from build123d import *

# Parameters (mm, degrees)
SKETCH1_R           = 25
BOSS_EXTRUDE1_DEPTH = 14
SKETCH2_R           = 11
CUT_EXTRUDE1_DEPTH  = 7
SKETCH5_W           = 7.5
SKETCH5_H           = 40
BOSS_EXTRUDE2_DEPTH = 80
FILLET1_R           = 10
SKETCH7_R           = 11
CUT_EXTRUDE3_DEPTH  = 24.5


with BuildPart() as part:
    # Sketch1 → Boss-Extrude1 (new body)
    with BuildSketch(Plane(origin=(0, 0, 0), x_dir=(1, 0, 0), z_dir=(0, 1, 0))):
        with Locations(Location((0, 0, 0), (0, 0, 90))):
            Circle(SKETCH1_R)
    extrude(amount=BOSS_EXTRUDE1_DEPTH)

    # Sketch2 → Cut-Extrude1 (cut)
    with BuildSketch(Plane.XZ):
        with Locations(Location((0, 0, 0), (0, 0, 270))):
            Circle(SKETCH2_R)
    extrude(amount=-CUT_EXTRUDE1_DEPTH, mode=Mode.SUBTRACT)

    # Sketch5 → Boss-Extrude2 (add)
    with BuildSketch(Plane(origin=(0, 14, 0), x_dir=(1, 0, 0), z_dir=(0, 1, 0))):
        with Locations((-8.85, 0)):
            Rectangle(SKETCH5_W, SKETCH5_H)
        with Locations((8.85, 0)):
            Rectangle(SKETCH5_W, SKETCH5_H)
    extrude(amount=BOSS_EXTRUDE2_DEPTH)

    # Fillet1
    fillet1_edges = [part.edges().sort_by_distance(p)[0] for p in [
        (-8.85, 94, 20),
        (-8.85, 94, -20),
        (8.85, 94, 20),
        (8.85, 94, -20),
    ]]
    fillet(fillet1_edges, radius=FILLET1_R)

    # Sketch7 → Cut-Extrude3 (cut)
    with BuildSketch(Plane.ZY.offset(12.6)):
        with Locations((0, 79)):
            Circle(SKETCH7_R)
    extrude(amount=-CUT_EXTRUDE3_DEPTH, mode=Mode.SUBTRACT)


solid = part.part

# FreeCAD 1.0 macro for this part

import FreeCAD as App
import Part
import Sketcher

V = App.Vector
Q = App.Units.Quantity


def edges_at(feature, points):
    """Names of the edges that pass closest to the given points."""
    edges = feature.Shape.Edges
    near = lambda p: min(range(len(edges)), key=lambda i: edges[i].distToShape(Part.Vertex(*p))[0])
    return sorted({f"Edge{near(p) + 1}" for p in points})


def add_polygon(sketch, points):
    """Adds a closed chain of lines whose ends are joined by coincident constraints."""
    first, n = sketch.GeometryCount, len(points)
    for a, b in zip(points, points[1:] + points[:1]):
        sketch.addGeometry(Part.LineSegment(App.Vector(*a, 0), App.Vector(*b, 0)), False)
    for i in range(n):
        sketch.addConstraint(Sketcher.Constraint("Coincident", first + i, 2, first + (i + 1) % n, 1))

doc = App.newDocument("Part")
body = doc.addObject("PartDesign::Body", "Body")

sketch1 = body.newObject("Sketcher::SketchObject", "Sketch")
sketch1.AttachmentSupport = (doc.getObject("XZ_Plane"), [""])
sketch1.MapMode = "FlatFace"
sketch1.addGeometry(Part.Circle(V(0, 0, 0), V(0, 0, 1), 25), False)
sketch1.addConstraint(Sketcher.Constraint("Coincident", 0, 3, -1, 1))
sketch1.addConstraint(Sketcher.Constraint("Diameter", 0, Q("50 mm")))
pad1 = body.newObject("PartDesign::Pad", "Pad")
pad1.Profile = sketch1
pad1.Length = 14
pad1.Reversed = True

sketch2 = body.newObject("Sketcher::SketchObject", "Sketch001")
sketch2.AttachmentSupport = (doc.getObject("XZ_Plane"), [""])
sketch2.MapMode = "FlatFace"
sketch2.addGeometry(Part.Circle(V(0, 0, 0), V(0, 0, 1), 11), False)
sketch2.addConstraint(Sketcher.Constraint("Coincident", 0, 3, -1, 1))
sketch2.addConstraint(Sketcher.Constraint("Diameter", 0, Q("22 mm")))
pocket1 = body.newObject("PartDesign::Pocket", "Pocket")
pocket1.Profile = sketch2
pocket1.Length = 7

sketch3 = body.newObject("Sketcher::SketchObject", "Sketch002")
sketch3.AttachmentSupport = (doc.getObject("XZ_Plane"), [""])
sketch3.MapMode = "FlatFace"
sketch3.AttachmentOffset = App.Placement(V(0, 0, -14), App.Rotation())
add_polygon(sketch3, [(-13, -20), (-13, 20), (-5, 20), (-5, -20)])
add_polygon(sketch3, [(5, -20), (5, 20), (13, 20), (13, -20)])
sketch3.addConstraint(Sketcher.Constraint("Vertical", 0))
sketch3.addConstraint(Sketcher.Constraint("Horizontal", 1))
sketch3.addConstraint(Sketcher.Constraint("Vertical", 2))
sketch3.addConstraint(Sketcher.Constraint("Horizontal", 3))
sketch3.addConstraint(Sketcher.Constraint("Vertical", 4))
sketch3.addConstraint(Sketcher.Constraint("Horizontal", 5))
sketch3.addConstraint(Sketcher.Constraint("Vertical", 6))
sketch3.addConstraint(Sketcher.Constraint("Horizontal", 7))
sketch3.addConstraint(Sketcher.Constraint("Symmetric", 2, 2, 4, 2, -1, 1))
sketch3.addConstraint(Sketcher.Constraint("Symmetric", 0, 2, 6, 2, -1, 1))
sketch3.addConstraint(Sketcher.Constraint("Horizontal", 1, 2, 4, 2))
sketch3.addConstraint(Sketcher.Constraint("DistanceY", 0, 1, 0, 2, Q("40 mm")))
sketch3.addConstraint(Sketcher.Constraint("DistanceX", 1, 1, 1, 2, Q("7.5 mm")))
sketch3.addConstraint(Sketcher.Constraint("DistanceX", 0, 2, -1, 1, Q("12.6 mm")))
pad2 = body.newObject("PartDesign::Pad", "Pad001")
pad2.Profile = sketch3
pad2.Length = 80
pad2.Reversed = True
doc.recompute()

fillet = body.newObject("PartDesign::Fillet", "Fillet")
fillet.Base = (pad2, edges_at(pad2, [
    (-8.85, 94, 20),
    (-8.85, 94, -20),
    (8.85, 94, 20),
    (8.85, 94, -20),
]))
fillet.Radius = 10

sketch4 = body.newObject("Sketcher::SketchObject", "Sketch003")
sketch4.AttachmentSupport = (doc.getObject("YZ_Plane"), [""])
sketch4.MapMode = "FlatFace"
sketch4.AttachmentOffset = App.Placement(V(0, 0, -12.6), App.Rotation())
sketch4.addGeometry(Part.Circle(V(79, 0, 0), V(0, 0, 1), 11), False)
sketch4.addConstraint(Sketcher.Constraint("PointOnObject", 0, 3, -1))
sketch4.addConstraint(Sketcher.Constraint("Diameter", 0, Q("22 mm")))
sketch4.addConstraint(Sketcher.Constraint("DistanceX", -1, 1, 0, 3, Q("79 mm")))
pocket2 = body.newObject("PartDesign::Pocket", "Pocket001")
pocket2.Profile = sketch4
pocket2.Length = 24.5
pocket2.Reversed = True

doc.recompute()
